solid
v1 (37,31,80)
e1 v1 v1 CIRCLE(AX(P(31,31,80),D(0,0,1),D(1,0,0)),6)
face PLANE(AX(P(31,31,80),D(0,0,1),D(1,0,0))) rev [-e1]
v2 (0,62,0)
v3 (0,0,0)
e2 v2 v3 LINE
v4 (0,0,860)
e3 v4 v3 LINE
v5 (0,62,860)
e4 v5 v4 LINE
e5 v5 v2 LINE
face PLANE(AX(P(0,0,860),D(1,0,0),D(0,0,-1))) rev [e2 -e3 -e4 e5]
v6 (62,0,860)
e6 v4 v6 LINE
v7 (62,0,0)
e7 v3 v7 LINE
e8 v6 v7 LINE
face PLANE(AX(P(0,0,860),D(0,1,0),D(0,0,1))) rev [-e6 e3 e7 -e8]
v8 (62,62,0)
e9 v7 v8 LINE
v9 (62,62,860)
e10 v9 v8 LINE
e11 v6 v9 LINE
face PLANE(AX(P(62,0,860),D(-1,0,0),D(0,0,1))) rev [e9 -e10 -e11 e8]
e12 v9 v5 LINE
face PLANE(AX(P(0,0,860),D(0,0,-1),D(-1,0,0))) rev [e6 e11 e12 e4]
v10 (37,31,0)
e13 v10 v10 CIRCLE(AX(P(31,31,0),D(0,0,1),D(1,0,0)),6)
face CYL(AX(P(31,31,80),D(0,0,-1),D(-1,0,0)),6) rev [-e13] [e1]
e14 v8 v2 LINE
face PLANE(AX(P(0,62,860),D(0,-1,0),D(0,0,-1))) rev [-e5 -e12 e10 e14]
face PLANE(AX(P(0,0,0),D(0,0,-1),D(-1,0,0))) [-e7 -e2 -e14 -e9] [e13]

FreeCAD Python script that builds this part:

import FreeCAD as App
import Part
import Sketcher
from FreeCAD import Vector
Q = App.Units.Quantity

doc = App.newDocument("Part")
params = doc.addObject("Spreadsheet::Sheet", "Params")
for row, (alias, value) in enumerate([
    ("sketch1_width", "62 mm"),
    ("pad1_length", "860 mm"),
    ("sketch2_diameter", "12 mm"),
    ("pocket1_length", "80 mm"),
], start=1):
    params.set(f"A{row}", alias)
    params.set(f"B{row}", "=" + value)
    params.setAlias(f"B{row}", alias)

body = doc.addObject("PartDesign::Body", "Body")

# Sketch on XY plane
sketch1 = body.newObject("Sketcher::SketchObject", "Sketch")
sketch1.AttachmentSupport = (doc.getObject("XY_Plane"), [""])
sketch1.MapMode = "FlatFace"
sketch1.addGeometry([
    Part.LineSegment(Vector(0, 62, 0), Vector(0, 0, 0)),
    Part.LineSegment(Vector(0, 0, 0), Vector(62, 0, 0)),
    Part.LineSegment(Vector(62, 0, 0), Vector(62, 62, 0)),
    Part.LineSegment(Vector(62, 62, 0), Vector(0, 62, 0)),
], False)
sketch1.addConstraint([
    Sketcher.Constraint("Coincident", 0, 2, 1, 1),
    Sketcher.Constraint("Coincident", 1, 2, 2, 1),
    Sketcher.Constraint("Coincident", 2, 2, 3, 1),
    Sketcher.Constraint("Coincident", 3, 2, 0, 1),
    Sketcher.Constraint("Vertical", 0),
    Sketcher.Constraint("Horizontal", 1),
    Sketcher.Constraint("Vertical", 2),
    Sketcher.Constraint("Horizontal", 3),
    Sketcher.Constraint("Coincident", 0, 2, -1, 1),
    Sketcher.Constraint("Equal", 3, 0),
    Sketcher.Constraint("DistanceX", 1, 1, 1, 2, Q("62 mm")),
])
sketch1.setExpression("Constraints[10]", "Params.sketch1_width")
pad1 = body.newObject("PartDesign::Pad", "Pad")
pad1.Profile = sketch1
pad1.setExpression("Length", "Params.pad1_length")

# Sketch on XY plane
sketch2 = body.newObject("Sketcher::SketchObject", "Sketch001")
sketch2.AttachmentSupport = (doc.getObject("XY_Plane"), [""])
sketch2.MapMode = "FlatFace"
sketch2.addGeometry(Part.Circle(Vector(31, 31, 0), Vector(0, 0, 1), 6), False)
sketch2.addConstraint([
    Sketcher.Constraint("Diameter", 0, Q("12 mm")),
    Sketcher.Constraint("DistanceX", -1, 1, 0, 3, Q("31 mm")),
    Sketcher.Constraint("DistanceY", -1, 1, 0, 3, Q("31 mm")),
])
sketch2.setExpression("Constraints[0]", "Params.sketch2_diameter")
pocket1 = body.newObject("PartDesign::Pocket", "Pocket")
pocket1.Profile = sketch2
pocket1.setExpression("Length", "Params.pocket1_length")
pocket1.Reversed = True

doc.recompute()
